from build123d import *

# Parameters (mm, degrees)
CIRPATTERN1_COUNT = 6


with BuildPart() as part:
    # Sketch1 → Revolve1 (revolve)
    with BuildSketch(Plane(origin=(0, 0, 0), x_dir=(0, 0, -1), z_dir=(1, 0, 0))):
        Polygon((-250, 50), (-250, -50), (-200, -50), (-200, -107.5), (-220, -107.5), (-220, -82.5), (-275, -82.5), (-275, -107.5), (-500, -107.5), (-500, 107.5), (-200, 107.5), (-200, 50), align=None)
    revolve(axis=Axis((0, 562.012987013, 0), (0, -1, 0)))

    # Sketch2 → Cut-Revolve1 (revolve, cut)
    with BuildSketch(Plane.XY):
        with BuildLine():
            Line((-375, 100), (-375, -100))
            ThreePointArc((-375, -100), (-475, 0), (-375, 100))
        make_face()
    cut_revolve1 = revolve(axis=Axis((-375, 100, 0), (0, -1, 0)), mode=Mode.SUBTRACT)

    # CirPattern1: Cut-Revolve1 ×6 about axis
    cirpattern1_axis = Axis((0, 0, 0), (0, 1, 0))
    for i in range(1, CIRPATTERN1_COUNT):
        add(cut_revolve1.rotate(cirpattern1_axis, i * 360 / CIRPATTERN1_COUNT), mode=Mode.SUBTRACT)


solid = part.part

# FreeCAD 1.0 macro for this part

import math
import FreeCAD as App
import Part
import Sketcher

V = App.Vector

doc = App.newDocument("Part")
body = doc.addObject("PartDesign::Body", "Body")

sketch1 = body.newObject("Sketcher::SketchObject", "Sketch")
sketch1.AttachmentSupport = (doc.getObject("YZ_Plane"), [""])
sketch1.MapMode = "FlatFace"
sketch1.addGeometry([
    Part.LineSegment(V(-50, 250, 0), V(50, 250, 0)),
    Part.LineSegment(V(50, 250, 0), V(50, 200, 0)),
    Part.LineSegment(V(50, 200, 0), V(108, 200, 0)),
    Part.LineSegment(V(108, 200, 0), V(108, 500, 0)),
    Part.LineSegment(V(108, 500, 0), V(-108, 500, 0)),
    Part.LineSegment(V(-108, 500, 0), V(-108, 275, 0)),
    Part.LineSegment(V(-108, 275, 0), V(-82, 275, 0)),
    Part.LineSegment(V(-82, 275, 0), V(-82, 220, 0)),
    Part.LineSegment(V(-82, 220, 0), V(-108, 220, 0)),
    Part.LineSegment(V(-108, 220, 0), V(-108, 200, 0)),
    Part.LineSegment(V(-108, 200, 0), V(-50, 200, 0)),
    Part.LineSegment(V(-50, 200, 0), V(-50, 250, 0)),
], False)
sketch1.addConstraint([
    Sketcher.Constraint("Coincident", 0, 2, 1, 1),
    Sketcher.Constraint("Coincident", 1, 2, 2, 1),
    Sketcher.Constraint("Coincident", 2, 2, 3, 1),
    Sketcher.Constraint("Coincident", 3, 2, 4, 1),
    Sketcher.Constraint("Coincident", 4, 2, 5, 1),
    Sketcher.Constraint("Coincident", 5, 2, 6, 1),
    Sketcher.Constraint("Coincident", 6, 2, 7, 1),
    Sketcher.Constraint("Coincident", 7, 2, 8, 1),
    Sketcher.Constraint("Coincident", 8, 2, 9, 1),
    Sketcher.Constraint("Coincident", 9, 2, 10, 1),
    Sketcher.Constraint("Coincident", 10, 2, 11, 1),
    Sketcher.Constraint("Coincident", 11, 2, 0, 1),
    Sketcher.Constraint("Horizontal", 0),
    Sketcher.Constraint("Vertical", 1),
    Sketcher.Constraint("Horizontal", 2),
    Sketcher.Constraint("Vertical", 3),
    Sketcher.Constraint("Horizontal", 4),
    Sketcher.Constraint("Vertical", 5),
    Sketcher.Constraint("Horizontal", 6),
    Sketcher.Constraint("Vertical", 7),
    Sketcher.Constraint("Horizontal", 8),
    Sketcher.Constraint("Vertical", 9),
    Sketcher.Constraint("Horizontal", 10),
    Sketcher.Constraint("Vertical", 11),
    Sketcher.Constraint("Symmetric", 2, 2, 9, 2, -2),
    Sketcher.Constraint("Vertical", 5, 2, 8, 2),
    Sketcher.Constraint("Equal", 2, 10),
    Sketcher.Constraint("DistanceX", 0, 1, 0, 2, 100.0),
    Sketcher.Constraint("DistanceX", 4, 2, 4, 1, 215.0),
    Sketcher.Constraint("DistanceX", 6, 1, 6, 2, 25.0),
    Sketcher.Constraint("DistanceY", 1, 2, 1, 1, 50.0),
    Sketcher.Constraint("DistanceY", 3, 1, 3, 2, 300.0),
    Sketcher.Constraint("DistanceY", 5, 2, 5, 1, 225.0),
    Sketcher.Constraint("DistanceY", 7, 2, 7, 1, 55.0),
    Sketcher.Constraint("DistanceY", -1, 1, 0, 2, 250.0),
])
revolution = body.newObject("PartDesign::Revolution", "Revolution")
revolution.Profile = sketch1
revolution.ReferenceAxis = (sketch1, ["H_Axis"])
revolution.Angle = 360

sketch2 = body.newObject("Sketcher::SketchObject", "Sketch001")
sketch2.AttachmentSupport = (doc.getObject("XY_Plane"), [""])
sketch2.MapMode = "FlatFace"
sketch2.addGeometry([
    Part.LineSegment(V(-375, -100, 0), V(-375, 100, 0)),
    Part.ArcOfCircle(Part.Circle(V(-375, 0, 0), V(0, 0, 1), 100), math.radians(90), math.radians(270)),
], False)
sketch2.addGeometry(Part.LineSegment(V(-375, 100, 0), V(-375, -100, 0)), True)
sketch2.addConstraint([
    Sketcher.Constraint("Coincident", 0, 1, 1, 2),
    Sketcher.Constraint("Coincident", 1, 1, 0, 2),
    Sketcher.Constraint("Vertical", 0),
    Sketcher.Constraint("Vertical", 2),
    Sketcher.Constraint("Coincident", 2, 1, 1, 1),
    Sketcher.Constraint("PointOnObject", 1, 3, -1),
    Sketcher.Constraint("Vertical", 1, 3, 0, 1),
    Sketcher.Constraint("Equal", 0, 2),
    Sketcher.Constraint("Radius", 1, 100.0),
    Sketcher.Constraint("DistanceX", 1, 3, -1, 1, 375.0),
])
groove = body.newObject("PartDesign::Groove", "Groove")
groove.Profile = sketch2
groove.ReferenceAxis = (sketch2, ["Axis0"])
groove.Angle = 360
doc.recompute()

polarpattern = body.newObject("PartDesign::PolarPattern", "PolarPattern")
polarpattern.Originals = [groove]
polarpattern.Axis = (doc.getObject("Y_Axis"), [""])
polarpattern.Angle = 360
polarpattern.Occurrences = 6
body.Tip = polarpattern

doc.recompute()
